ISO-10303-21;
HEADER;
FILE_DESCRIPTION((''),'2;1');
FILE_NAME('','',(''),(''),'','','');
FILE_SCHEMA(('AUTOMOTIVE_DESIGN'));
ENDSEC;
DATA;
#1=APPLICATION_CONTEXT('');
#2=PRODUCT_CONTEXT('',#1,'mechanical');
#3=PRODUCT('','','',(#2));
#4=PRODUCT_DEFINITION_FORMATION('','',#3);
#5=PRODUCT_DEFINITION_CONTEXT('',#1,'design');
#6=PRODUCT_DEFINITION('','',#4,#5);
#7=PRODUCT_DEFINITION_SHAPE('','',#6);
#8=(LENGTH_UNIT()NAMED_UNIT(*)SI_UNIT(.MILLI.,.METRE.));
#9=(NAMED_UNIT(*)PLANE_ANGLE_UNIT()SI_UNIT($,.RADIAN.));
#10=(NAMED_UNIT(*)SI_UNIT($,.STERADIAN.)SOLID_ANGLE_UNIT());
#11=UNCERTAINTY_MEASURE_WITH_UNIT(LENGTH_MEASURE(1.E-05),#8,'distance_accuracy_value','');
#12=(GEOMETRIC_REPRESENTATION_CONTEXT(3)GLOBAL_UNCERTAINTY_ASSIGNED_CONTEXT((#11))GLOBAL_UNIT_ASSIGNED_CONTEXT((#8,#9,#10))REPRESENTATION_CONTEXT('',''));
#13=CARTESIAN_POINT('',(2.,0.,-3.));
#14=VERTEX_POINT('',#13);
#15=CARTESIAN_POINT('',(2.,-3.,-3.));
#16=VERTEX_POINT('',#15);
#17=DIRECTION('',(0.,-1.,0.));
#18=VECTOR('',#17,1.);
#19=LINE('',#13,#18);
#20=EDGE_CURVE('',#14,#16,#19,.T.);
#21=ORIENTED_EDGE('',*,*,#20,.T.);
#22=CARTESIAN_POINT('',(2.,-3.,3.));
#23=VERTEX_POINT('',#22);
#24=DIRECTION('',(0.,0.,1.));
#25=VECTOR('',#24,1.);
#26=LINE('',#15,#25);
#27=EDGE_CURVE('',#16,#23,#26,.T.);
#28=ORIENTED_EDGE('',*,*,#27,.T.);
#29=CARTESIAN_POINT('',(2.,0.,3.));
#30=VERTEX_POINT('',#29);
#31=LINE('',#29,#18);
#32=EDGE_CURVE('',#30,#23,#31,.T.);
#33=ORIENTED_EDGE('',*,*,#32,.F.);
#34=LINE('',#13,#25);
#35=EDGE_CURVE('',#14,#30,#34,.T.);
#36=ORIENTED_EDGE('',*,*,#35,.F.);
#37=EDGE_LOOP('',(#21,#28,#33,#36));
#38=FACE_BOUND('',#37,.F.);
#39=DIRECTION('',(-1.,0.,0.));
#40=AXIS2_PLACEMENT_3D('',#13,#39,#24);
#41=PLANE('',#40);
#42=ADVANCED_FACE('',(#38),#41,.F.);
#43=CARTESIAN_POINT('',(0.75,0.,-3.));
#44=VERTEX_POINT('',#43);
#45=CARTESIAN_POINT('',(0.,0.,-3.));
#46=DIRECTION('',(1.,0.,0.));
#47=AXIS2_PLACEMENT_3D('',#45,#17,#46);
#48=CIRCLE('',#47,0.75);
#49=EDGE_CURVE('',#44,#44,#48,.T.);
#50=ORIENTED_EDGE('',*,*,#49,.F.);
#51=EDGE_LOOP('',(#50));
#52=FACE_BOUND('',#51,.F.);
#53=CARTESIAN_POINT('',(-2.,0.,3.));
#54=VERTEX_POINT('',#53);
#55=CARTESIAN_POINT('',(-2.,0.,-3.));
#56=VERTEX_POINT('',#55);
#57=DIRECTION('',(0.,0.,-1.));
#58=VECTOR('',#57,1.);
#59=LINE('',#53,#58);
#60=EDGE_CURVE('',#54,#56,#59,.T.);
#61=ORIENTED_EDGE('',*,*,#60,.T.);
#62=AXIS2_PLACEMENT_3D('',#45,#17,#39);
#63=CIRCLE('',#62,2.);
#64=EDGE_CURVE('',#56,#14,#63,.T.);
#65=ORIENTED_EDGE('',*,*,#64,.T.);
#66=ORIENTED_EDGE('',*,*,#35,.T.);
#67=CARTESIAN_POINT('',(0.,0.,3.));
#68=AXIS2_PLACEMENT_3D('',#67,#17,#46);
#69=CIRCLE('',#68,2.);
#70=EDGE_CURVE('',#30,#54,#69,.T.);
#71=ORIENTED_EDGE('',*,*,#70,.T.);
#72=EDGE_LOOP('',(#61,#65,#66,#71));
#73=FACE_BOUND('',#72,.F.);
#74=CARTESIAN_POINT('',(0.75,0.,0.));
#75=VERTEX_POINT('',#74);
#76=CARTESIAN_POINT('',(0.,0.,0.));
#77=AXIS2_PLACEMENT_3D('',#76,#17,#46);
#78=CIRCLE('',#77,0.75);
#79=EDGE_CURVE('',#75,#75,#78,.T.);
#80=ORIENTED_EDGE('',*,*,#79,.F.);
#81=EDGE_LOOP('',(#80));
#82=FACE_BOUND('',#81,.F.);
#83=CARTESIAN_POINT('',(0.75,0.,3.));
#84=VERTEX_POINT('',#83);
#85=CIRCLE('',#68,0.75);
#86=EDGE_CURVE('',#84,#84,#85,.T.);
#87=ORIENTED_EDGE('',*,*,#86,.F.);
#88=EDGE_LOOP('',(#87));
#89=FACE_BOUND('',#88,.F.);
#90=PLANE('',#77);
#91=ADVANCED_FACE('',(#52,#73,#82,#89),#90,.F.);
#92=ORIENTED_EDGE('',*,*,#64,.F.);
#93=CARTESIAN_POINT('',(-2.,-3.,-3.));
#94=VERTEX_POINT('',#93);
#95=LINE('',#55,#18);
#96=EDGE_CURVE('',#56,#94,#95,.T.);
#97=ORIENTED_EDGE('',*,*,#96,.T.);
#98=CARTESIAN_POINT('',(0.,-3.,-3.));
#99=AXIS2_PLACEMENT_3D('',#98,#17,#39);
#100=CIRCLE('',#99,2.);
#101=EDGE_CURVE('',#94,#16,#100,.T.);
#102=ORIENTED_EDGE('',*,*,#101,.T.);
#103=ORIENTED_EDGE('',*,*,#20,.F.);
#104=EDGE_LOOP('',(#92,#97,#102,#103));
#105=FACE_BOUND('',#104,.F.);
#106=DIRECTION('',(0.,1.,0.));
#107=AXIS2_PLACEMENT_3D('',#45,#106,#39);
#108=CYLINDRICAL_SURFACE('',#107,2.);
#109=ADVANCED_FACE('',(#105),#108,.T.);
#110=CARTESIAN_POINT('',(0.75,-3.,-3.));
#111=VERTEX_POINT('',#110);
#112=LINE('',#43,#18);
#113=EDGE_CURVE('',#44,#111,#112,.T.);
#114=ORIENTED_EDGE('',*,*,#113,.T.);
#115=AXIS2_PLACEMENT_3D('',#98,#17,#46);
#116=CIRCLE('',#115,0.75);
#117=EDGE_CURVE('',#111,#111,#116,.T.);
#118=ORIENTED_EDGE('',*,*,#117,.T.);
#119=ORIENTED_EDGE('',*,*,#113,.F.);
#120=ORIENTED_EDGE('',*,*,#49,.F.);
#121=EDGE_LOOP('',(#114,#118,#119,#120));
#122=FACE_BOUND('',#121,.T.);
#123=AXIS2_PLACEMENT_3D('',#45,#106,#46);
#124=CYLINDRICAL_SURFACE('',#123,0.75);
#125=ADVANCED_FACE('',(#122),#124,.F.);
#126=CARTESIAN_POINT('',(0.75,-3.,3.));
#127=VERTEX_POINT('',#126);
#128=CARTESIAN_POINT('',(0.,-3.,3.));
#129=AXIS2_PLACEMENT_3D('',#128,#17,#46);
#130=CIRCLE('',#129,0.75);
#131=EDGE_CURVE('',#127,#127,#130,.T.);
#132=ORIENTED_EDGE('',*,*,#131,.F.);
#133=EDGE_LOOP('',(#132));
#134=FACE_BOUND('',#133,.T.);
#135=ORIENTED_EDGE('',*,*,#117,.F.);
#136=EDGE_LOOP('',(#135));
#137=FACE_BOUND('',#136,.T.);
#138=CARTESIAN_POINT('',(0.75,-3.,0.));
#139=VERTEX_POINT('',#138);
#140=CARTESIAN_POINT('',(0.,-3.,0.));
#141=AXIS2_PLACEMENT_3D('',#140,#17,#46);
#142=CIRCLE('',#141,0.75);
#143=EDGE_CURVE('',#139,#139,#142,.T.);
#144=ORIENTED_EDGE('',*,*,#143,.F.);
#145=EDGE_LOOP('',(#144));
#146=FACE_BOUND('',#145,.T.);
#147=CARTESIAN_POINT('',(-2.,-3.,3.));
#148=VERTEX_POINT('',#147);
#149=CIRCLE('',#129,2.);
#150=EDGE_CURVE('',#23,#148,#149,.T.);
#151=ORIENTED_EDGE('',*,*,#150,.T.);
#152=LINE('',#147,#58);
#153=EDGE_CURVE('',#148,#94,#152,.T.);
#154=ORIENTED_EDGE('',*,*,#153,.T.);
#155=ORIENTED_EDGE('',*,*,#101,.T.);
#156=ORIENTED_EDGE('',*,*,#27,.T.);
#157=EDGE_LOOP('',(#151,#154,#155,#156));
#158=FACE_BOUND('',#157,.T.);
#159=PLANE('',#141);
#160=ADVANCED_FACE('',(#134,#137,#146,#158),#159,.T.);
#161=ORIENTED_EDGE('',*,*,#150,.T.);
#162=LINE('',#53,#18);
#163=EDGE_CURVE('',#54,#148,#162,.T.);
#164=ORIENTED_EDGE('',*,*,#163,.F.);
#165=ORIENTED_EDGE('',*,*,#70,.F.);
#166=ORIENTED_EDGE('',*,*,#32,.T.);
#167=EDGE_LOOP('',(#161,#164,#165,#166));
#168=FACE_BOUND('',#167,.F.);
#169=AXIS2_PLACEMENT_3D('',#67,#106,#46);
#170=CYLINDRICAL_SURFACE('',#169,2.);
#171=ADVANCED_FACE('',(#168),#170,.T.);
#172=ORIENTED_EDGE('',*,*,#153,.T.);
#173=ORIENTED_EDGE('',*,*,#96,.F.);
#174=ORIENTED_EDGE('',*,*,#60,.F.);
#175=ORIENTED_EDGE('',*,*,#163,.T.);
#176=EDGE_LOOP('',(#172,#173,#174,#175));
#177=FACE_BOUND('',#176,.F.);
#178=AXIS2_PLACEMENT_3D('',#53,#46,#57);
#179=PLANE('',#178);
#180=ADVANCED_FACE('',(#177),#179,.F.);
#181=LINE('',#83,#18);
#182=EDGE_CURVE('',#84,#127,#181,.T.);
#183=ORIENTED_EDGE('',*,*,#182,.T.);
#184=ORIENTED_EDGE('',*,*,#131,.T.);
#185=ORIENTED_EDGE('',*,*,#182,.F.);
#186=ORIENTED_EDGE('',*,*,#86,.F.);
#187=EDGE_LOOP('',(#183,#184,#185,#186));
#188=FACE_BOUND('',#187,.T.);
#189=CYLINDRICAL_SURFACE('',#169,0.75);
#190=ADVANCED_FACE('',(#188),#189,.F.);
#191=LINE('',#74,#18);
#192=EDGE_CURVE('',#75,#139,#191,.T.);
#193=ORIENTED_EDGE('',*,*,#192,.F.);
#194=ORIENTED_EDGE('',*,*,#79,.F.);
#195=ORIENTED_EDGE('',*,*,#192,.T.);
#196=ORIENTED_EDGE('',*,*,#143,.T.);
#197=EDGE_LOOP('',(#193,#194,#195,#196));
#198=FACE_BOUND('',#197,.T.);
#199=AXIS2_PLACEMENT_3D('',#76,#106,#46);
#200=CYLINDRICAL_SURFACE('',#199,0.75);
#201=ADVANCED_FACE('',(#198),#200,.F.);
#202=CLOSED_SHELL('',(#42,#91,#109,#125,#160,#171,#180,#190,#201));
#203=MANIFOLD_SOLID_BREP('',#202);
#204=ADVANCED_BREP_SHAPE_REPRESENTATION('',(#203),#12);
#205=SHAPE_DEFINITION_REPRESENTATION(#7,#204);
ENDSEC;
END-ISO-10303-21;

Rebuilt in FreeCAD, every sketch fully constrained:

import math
import FreeCAD as App
import Part
import Sketcher
Q = App.Units.Quantity

doc = App.newDocument("Part")
body = doc.addObject("PartDesign::Body", "Body")

# Sketch on XZ plane
sketch1 = doc.addObject("Sketcher::SketchObject", "Sketch")
body.addObject(sketch1)
sketch1.AttachmentSupport = (doc.XZ_Plane, [""])
sketch1.MapMode = "FlatFace"
sketch1.addGeometry(Part.ArcOfCircle(Part.Circle(App.Vector(0, 3, 0), App.Vector(0, 0, 1), 2), math.radians(0), math.radians(180)), False)
sketch1.addGeometry(Part.LineSegment(App.Vector(-2, 3, 0), App.Vector(-2, -3, 0)), False)
sketch1.addGeometry(Part.ArcOfCircle(Part.Circle(App.Vector(0, -3, 0), App.Vector(0, 0, 1), 2), math.radians(180), math.radians(360)), False)
sketch1.addGeometry(Part.LineSegment(App.Vector(2, -3, 0), App.Vector(2, 3, 0)), False)
sketch1.addGeometry(Part.Circle(App.Vector(0, -3, 0), App.Vector(0, 0, 1), 0.8), False)
sketch1.addGeometry(Part.Circle(App.Vector(0, 0, 0), App.Vector(0, 0, 1), 0.8), False)
sketch1.addGeometry(Part.Circle(App.Vector(0, 3, 0), App.Vector(0, 0, 1), 0.8), False)
sketch1.addConstraint(Sketcher.Constraint("Tangent", 0, 2, 1, 1))
sketch1.addConstraint(Sketcher.Constraint("Tangent", 1, 2, 2, 1))
sketch1.addConstraint(Sketcher.Constraint("Tangent", 2, 2, 3, 1))
sketch1.addConstraint(Sketcher.Constraint("Tangent", 3, 2, 0, 1))
sketch1.addConstraint(Sketcher.Constraint("Vertical", 1))
sketch1.addConstraint(Sketcher.Constraint("Vertical", 3))
sketch1.addConstraint(Sketcher.Constraint("Coincident", 5, 3, -1, 1))
sketch1.addConstraint(Sketcher.Constraint("Coincident", 4, 3, 2, 3))
sketch1.addConstraint(Sketcher.Constraint("Coincident", 6, 3, 0, 3))
sketch1.addConstraint(Sketcher.Constraint("Equal", 4, 5))
sketch1.addConstraint(Sketcher.Constraint("Equal", 5, 6))
sketch1.addConstraint(Sketcher.Constraint("Symmetric", 0, 3, 2, 3, -1, 1))
sketch1.addConstraint(Sketcher.Constraint("Radius", 0, Q("2 mm")))
sketch1.addConstraint(Sketcher.Constraint("Diameter", 4, Q("1.5 mm")))
sketch1.addConstraint(Sketcher.Constraint("DistanceY", 1, 2, 1, 1, Q("6 mm")))
pad1 = doc.addObject("PartDesign::Pad", "Pad")
body.addObject(pad1)
pad1.Profile = sketch1
pad1.Length = 3

doc.recompute()
